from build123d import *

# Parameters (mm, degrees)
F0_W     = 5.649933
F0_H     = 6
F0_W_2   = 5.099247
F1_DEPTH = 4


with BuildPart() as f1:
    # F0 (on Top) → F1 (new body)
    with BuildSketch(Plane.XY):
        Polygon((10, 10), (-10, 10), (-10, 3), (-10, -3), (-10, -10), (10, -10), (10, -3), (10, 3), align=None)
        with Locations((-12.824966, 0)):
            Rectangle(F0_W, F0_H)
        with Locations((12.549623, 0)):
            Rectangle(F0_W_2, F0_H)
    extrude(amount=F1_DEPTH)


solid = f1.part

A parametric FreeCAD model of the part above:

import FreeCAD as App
import Part
import Sketcher

V = App.Vector

doc = App.newDocument("Part")
params = doc.addObject("Spreadsheet::Sheet", "Params")
for row, (alias, value) in enumerate([
    ("sketch1_width", "20 mm"),
    ("sketch1_height", "7 mm"),
    ("sketch1_height2", "6 mm"),
    ("pad1_length", "4 mm"),
], start=1):
    params.set(f"A{row}", alias)
    params.set(f"B{row}", "=" + value)
    params.setAlias(f"B{row}", alias)

body = doc.addObject("PartDesign::Body", "Body")

# Sketch on XY plane
sketch1 = body.newObject("Sketcher::SketchObject", "Sketch")
sketch1.AttachmentSupport = (doc.getObject("XY_Plane"), [""])
sketch1.MapMode = "FlatFace"
sketch1.addGeometry([
    Part.LineSegment(V(-10, -10, 0), V(10, -10, 0)),  # 0
    Part.LineSegment(V(10, -10, 0), V(10, -3, 0)),  # 1
    Part.LineSegment(V(10, -3, 0), V(15, -3, 0)),  # 2
    Part.LineSegment(V(15, -3, 0), V(15, 3, 0)),  # 3
    Part.LineSegment(V(15, 3, 0), V(10, 3, 0)),  # 4
    Part.LineSegment(V(10, 3, 0), V(10, 10, 0)),  # 5
    Part.LineSegment(V(10, 10, 0), V(-10, 10, 0)),  # 6
    Part.LineSegment(V(-10, 10, 0), V(-10, 3, 0)),  # 7
    Part.LineSegment(V(-10, 3, 0), V(-16, 3, 0)),  # 8
    Part.LineSegment(V(-16, 3, 0), V(-16, -3, 0)),  # 9
    Part.LineSegment(V(-16, -3, 0), V(-10, -3, 0)),  # 10
    Part.LineSegment(V(-10, -3, 0), V(-10, -10, 0)),  # 11
], False)
sketch1.addConstraint([
    Sketcher.Constraint("Coincident", 0, 2, 1, 1),
    Sketcher.Constraint("Coincident", 1, 2, 2, 1),
    Sketcher.Constraint("Coincident", 2, 2, 3, 1),
    Sketcher.Constraint("Coincident", 3, 2, 4, 1),
    Sketcher.Constraint("Coincident", 4, 2, 5, 1),
    Sketcher.Constraint("Coincident", 5, 2, 6, 1),
    Sketcher.Constraint("Coincident", 6, 2, 7, 1),
    Sketcher.Constraint("Coincident", 7, 2, 8, 1),
    Sketcher.Constraint("Coincident", 8, 2, 9, 1),
    Sketcher.Constraint("Coincident", 9, 2, 10, 1),
    Sketcher.Constraint("Coincident", 10, 2, 11, 1),
    Sketcher.Constraint("Coincident", 11, 2, 0, 1),
    Sketcher.Constraint("Horizontal", 0),
    Sketcher.Constraint("Vertical", 1),
    Sketcher.Constraint("Horizontal", 2),
    Sketcher.Constraint("Vertical", 3),
    Sketcher.Constraint("Horizontal", 4),
    Sketcher.Constraint("Vertical", 5),
    Sketcher.Constraint("Horizontal", 6),
    Sketcher.Constraint("Vertical", 7),
    Sketcher.Constraint("Horizontal", 8),
    Sketcher.Constraint("Vertical", 9),
    Sketcher.Constraint("Horizontal", 10),
    Sketcher.Constraint("Vertical", 11),
    Sketcher.Constraint("Symmetric", 0, 2, 6, 2, -1, 1),
    Sketcher.Constraint("Symmetric", 4, 2, 10, 2, -1, 1),
    Sketcher.Constraint("Symmetric", 4, 2, 7, 2, -2),
    Sketcher.Constraint("Horizontal", 2, 2, 9, 2),
    Sketcher.Constraint("DistanceX", 0, 1, 0, 2, 20.0),
    Sketcher.Constraint("DistanceY", 1, 1, 1, 2, 7.0),
    Sketcher.Constraint("DistanceY", 3, 1, 3, 2, 6.0),
    Sketcher.Constraint("DistanceX", 2, 1, 2, 2, 5.099246),
    Sketcher.Constraint("DistanceX", 8, 2, 8, 1, 5.649933),
])
sketch1.setExpression("Constraints[28]", "Params.sketch1_width")
sketch1.setExpression("Constraints[29]", "Params.sketch1_height")
sketch1.setExpression("Constraints[30]", "Params.sketch1_height2")
pad1 = body.newObject("PartDesign::Pad", "Pad")
pad1.Profile = sketch1
pad1.setExpression("Length", "Params.pad1_length")

doc.recompute()
